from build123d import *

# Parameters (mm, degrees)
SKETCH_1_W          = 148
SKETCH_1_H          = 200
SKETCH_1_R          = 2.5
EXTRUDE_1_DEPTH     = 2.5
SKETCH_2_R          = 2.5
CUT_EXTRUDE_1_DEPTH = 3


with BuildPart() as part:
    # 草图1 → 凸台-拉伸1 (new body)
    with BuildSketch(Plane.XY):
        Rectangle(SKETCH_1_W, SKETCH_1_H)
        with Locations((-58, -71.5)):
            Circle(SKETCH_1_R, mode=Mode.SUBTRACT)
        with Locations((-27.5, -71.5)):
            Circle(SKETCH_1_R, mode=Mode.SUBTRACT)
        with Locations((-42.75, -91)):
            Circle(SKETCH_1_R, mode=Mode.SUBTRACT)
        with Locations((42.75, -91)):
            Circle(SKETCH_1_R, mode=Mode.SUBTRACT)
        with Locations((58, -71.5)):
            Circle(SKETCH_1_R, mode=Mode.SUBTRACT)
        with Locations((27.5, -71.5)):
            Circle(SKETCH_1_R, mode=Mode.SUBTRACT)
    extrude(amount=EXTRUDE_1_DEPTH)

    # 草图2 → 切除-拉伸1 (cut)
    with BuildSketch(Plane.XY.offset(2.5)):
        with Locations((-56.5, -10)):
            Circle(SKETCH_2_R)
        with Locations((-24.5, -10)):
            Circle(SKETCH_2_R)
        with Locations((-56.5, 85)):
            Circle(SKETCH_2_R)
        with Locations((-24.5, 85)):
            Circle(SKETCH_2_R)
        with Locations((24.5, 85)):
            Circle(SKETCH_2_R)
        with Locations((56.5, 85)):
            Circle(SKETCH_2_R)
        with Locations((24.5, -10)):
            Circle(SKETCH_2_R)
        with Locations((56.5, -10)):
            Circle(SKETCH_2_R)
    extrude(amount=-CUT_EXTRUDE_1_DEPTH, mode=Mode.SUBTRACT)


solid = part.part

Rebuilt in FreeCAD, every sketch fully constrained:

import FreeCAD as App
import Part
import Sketcher


def add_polygon(sketch, points):
    """Adds a closed chain of lines whose ends are joined by coincident constraints."""
    first, n = sketch.GeometryCount, len(points)
    for a, b in zip(points, points[1:] + points[:1]):
        sketch.addGeometry(Part.LineSegment(App.Vector(*a, 0), App.Vector(*b, 0)), False)
    for i in range(n):
        sketch.addConstraint(Sketcher.Constraint("Coincident", first + i, 2, first + (i + 1) % n, 1))

doc = App.newDocument("Part")
body = doc.addObject("PartDesign::Body", "Body")

sketch1 = doc.addObject("Sketcher::SketchObject", "Sketch")
body.addObject(sketch1)
sketch1.AttachmentSupport = (doc.XY_Plane, [""])
sketch1.MapMode = "FlatFace"
add_polygon(sketch1, [(-74, 100), (-74, -100), (74, -100), (74, 100)])
sketch1.addGeometry(Part.Circle(App.Vector(-42.8, -91, 0), App.Vector(0, 0, 1), 2.5), False)
sketch1.addGeometry(Part.Circle(App.Vector(42.8, -91, 0), App.Vector(0, 0, 1), 2.5), False)
sketch1.addGeometry(Part.Circle(App.Vector(-58, -71.5, 0), App.Vector(0, 0, 1), 2.5), False)
sketch1.addGeometry(Part.Circle(App.Vector(-27.5, -71.5, 0), App.Vector(0, 0, 1), 2.5), False)
sketch1.addGeometry(Part.Circle(App.Vector(27.5, -71.5, 0), App.Vector(0, 0, 1), 2.5), False)
sketch1.addGeometry(Part.Circle(App.Vector(58, -71.5, 0), App.Vector(0, 0, 1), 2.5), False)
sketch1.addConstraint([
    Sketcher.Constraint("Vertical", 0),
    Sketcher.Constraint("Horizontal", 1),
    Sketcher.Constraint("Vertical", 2),
    Sketcher.Constraint("Horizontal", 3),
    Sketcher.Constraint("Equal", 4, 5),
    Sketcher.Constraint("Equal", 5, 6),
    Sketcher.Constraint("Equal", 6, 7),
    Sketcher.Constraint("Equal", 7, 8),
    Sketcher.Constraint("Equal", 8, 9),
    Sketcher.Constraint("Symmetric", 0, 2, 2, 2, -1, 1),
    Sketcher.Constraint("Symmetric", 4, 3, 5, 3, -2),
    Sketcher.Constraint("Symmetric", 7, 3, 8, 3, -2),
    Sketcher.Constraint("Symmetric", 6, 3, 9, 3, -2),
    Sketcher.Constraint("Horizontal", 6, 3, 7, 3),
    Sketcher.Constraint("Diameter", 4, 5.0),
    Sketcher.Constraint("DistanceX", 1, 1, 1, 2, 148.0),
    Sketcher.Constraint("DistanceY", 0, 2, 0, 1, 200.0),
    Sketcher.Constraint("DistanceY", 4, 3, -1, 1, 91.0),
    Sketcher.Constraint("DistanceX", 6, 3, -1, 1, 58.0),
    Sketcher.Constraint("DistanceX", 7, 3, 8, 3, 55.0),
    Sketcher.Constraint("DistanceY", 6, 3, -1, 1, 71.5),
    Sketcher.Constraint("DistanceX", 4, 3, 5, 3, 85.5),
])
pad1 = doc.addObject("PartDesign::Pad", "Pad")
body.addObject(pad1)
pad1.Profile = sketch1
pad1.Length = 2.5

sketch2 = doc.addObject("Sketcher::SketchObject", "Sketch001")
body.addObject(sketch2)
sketch2.AttachmentSupport = (doc.XY_Plane, [""])
sketch2.MapMode = "FlatFace"
sketch2.AttachmentOffset = App.Placement(App.Vector(0, 0, 2.5), App.Rotation())
sketch2.addGeometry([
    Part.Circle(App.Vector(-56.5, -10, 0), App.Vector(0, 0, 1), 2.5),
    Part.Circle(App.Vector(-24.5, -10, 0), App.Vector(0, 0, 1), 2.5),
    Part.Circle(App.Vector(-56.5, 85, 0), App.Vector(0, 0, 1), 2.5),
    Part.Circle(App.Vector(-24.5, 85, 0), App.Vector(0, 0, 1), 2.5),
    Part.Circle(App.Vector(24.5, 85, 0), App.Vector(0, 0, 1), 2.5),
    Part.Circle(App.Vector(56.5, 85, 0), App.Vector(0, 0, 1), 2.5),
    Part.Circle(App.Vector(24.5, -10, 0), App.Vector(0, 0, 1), 2.5),
    Part.Circle(App.Vector(56.5, -10, 0), App.Vector(0, 0, 1), 2.5),
], False)
sketch2.addConstraint([
    Sketcher.Constraint("Equal", 0, 1),
    Sketcher.Constraint("Equal", 1, 2),
    Sketcher.Constraint("Equal", 2, 3),
    Sketcher.Constraint("Equal", 3, 4),
    Sketcher.Constraint("Equal", 4, 5),
    Sketcher.Constraint("Equal", 5, 6),
    Sketcher.Constraint("Equal", 6, 7),
    Sketcher.Constraint("Symmetric", 3, 3, 4, 3, -2),
    Sketcher.Constraint("Symmetric", 2, 3, 5, 3, -2),
    Sketcher.Constraint("Symmetric", 1, 3, 6, 3, -2),
    Sketcher.Constraint("Symmetric", 0, 3, 7, 3, -2),
    Sketcher.Constraint("Horizontal", 0, 3, 1, 3),
    Sketcher.Constraint("Horizontal", 2, 3, 3, 3),
    Sketcher.Constraint("Vertical", 0, 3, 2, 3),
    Sketcher.Constraint("Vertical", 1, 3, 3, 3),
    Sketcher.Constraint("Diameter", 0, 5.0),
    Sketcher.Constraint("DistanceY", 0, 3, -1, 1, 10.0),
    Sketcher.Constraint("DistanceY", -1, 1, 2, 3, 85.0),
    Sketcher.Constraint("DistanceX", 0, 3, 1, 3, 32.0),
    Sketcher.Constraint("DistanceX", 3, 3, 4, 3, 49.0),
])
pocket1 = doc.addObject("PartDesign::Pocket", "Pocket")
body.addObject(pocket1)
pocket1.Profile = sketch2
pocket1.Length = 3

doc.recompute()
